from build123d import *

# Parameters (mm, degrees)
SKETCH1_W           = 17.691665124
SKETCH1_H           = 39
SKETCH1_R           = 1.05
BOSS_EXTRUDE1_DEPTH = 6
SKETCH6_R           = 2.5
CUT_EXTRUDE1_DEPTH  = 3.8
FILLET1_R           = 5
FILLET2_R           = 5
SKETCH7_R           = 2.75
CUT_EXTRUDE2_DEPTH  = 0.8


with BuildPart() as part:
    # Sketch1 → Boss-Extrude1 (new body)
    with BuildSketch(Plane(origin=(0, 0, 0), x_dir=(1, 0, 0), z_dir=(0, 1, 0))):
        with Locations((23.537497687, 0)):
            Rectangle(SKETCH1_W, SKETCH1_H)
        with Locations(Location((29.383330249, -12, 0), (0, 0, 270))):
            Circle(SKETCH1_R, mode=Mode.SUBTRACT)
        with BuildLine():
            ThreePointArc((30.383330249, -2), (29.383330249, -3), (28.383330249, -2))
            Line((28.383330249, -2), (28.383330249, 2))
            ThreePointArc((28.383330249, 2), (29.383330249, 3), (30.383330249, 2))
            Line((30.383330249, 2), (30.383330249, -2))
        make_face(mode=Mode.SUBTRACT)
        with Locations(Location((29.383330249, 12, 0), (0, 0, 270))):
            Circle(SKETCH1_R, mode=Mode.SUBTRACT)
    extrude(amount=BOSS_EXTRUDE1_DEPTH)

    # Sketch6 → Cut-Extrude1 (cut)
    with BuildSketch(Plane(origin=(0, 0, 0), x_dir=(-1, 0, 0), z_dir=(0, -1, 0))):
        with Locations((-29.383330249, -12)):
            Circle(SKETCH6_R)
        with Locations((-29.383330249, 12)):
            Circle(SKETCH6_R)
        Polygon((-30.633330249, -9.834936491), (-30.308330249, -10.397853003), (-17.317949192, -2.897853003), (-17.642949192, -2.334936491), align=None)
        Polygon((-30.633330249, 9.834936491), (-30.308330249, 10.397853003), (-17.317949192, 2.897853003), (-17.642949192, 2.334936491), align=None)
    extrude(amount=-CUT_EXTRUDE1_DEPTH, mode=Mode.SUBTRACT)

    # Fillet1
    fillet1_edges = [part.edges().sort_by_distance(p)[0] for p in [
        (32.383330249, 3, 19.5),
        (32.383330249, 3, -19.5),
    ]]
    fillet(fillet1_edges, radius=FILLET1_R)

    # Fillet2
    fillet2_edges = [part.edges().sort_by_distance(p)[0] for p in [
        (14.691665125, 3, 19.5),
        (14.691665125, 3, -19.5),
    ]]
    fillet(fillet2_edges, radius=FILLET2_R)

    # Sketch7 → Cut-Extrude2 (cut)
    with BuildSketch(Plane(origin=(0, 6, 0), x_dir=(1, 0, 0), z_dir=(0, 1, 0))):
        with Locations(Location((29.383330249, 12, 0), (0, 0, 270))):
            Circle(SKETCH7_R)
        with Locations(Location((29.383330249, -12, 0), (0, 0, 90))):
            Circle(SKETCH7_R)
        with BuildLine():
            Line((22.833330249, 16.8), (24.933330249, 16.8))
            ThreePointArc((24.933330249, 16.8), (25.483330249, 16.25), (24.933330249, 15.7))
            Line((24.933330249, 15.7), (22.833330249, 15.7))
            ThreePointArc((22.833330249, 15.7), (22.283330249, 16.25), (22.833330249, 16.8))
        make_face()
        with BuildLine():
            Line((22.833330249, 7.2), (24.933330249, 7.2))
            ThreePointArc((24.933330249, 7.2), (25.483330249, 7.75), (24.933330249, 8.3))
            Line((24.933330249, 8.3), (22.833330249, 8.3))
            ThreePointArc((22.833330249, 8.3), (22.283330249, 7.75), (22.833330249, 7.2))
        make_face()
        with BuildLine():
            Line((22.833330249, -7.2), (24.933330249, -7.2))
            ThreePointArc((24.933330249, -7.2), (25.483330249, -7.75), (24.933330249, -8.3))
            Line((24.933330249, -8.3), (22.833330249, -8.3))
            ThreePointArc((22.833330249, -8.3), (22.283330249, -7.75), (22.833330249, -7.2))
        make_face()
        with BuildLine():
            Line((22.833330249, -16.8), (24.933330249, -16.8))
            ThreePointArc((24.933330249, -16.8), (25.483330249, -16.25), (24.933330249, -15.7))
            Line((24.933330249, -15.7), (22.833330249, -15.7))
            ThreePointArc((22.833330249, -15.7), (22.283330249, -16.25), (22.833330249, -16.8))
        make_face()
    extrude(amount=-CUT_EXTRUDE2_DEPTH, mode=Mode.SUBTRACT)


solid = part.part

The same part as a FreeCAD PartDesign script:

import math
import FreeCAD as App
import Part
import Sketcher
from FreeCAD import Vector
Q = App.Units.Quantity


def edges_at(feature, points):
    """Names of the edges that pass closest to the given points."""
    edges = feature.Shape.Edges
    near = lambda p: min(range(len(edges)), key=lambda i: edges[i].distToShape(Part.Vertex(*p))[0])
    return sorted({f"Edge{near(p) + 1}" for p in points})


def add_polygon(sketch, points):
    """Adds a closed chain of lines whose ends are joined by coincident constraints."""
    first, n = sketch.GeometryCount, len(points)
    for a, b in zip(points, points[1:] + points[:1]):
        sketch.addGeometry(Part.LineSegment(App.Vector(*a, 0), App.Vector(*b, 0)), False)
    for i in range(n):
        sketch.addConstraint(Sketcher.Constraint("Coincident", first + i, 2, first + (i + 1) % n, 1))

doc = App.newDocument("Part")
body = doc.addObject("PartDesign::Body", "Body")

# Sketch on XZ plane
sketch1 = body.newObject("Sketcher::SketchObject", "Sketch")
sketch1.AttachmentSupport = (doc.getObject("XZ_Plane"), [""])
sketch1.MapMode = "FlatFace"
add_polygon(sketch1, [(14.7, -19.5), (14.7, 19.5), (32.4, 19.5), (32.4, -19.5)])  # lines 0-3
sketch1.addGeometry(Part.Circle(Vector(29.4, 12, 0), Vector(0, 0, 1), 1.1), False)  # 4
sketch1.addGeometry(Part.LineSegment(Vector(30.4, -2, 0), Vector(30.4, 2, 0)), False)  # 5
sketch1.addGeometry(Part.ArcOfCircle(Part.Circle(Vector(29.4, 2, 0), Vector(0, 0, 1), 1), math.radians(0), math.radians(180)), False)  # 6
sketch1.addGeometry(Part.LineSegment(Vector(28.4, 2, 0), Vector(28.4, -2, 0)), False)  # 7
sketch1.addGeometry(Part.ArcOfCircle(Part.Circle(Vector(29.4, -2, 0), Vector(0, 0, 1), 1), math.radians(180), math.radians(360)), False)  # 8
sketch1.addGeometry(Part.Circle(Vector(29.4, -12, 0), Vector(0, 0, 1), 1.1), False)  # 9
sketch1.addConstraint([
    Sketcher.Constraint("Tangent", 5, 2, 6, 1),
    Sketcher.Constraint("Tangent", 6, 2, 7, 1),
    Sketcher.Constraint("Tangent", 7, 2, 8, 1),
    Sketcher.Constraint("Tangent", 8, 2, 5, 1),
    Sketcher.Constraint("Vertical", 0),
    Sketcher.Constraint("Horizontal", 1),
    Sketcher.Constraint("Vertical", 2),
    Sketcher.Constraint("Horizontal", 3),
    Sketcher.Constraint("Vertical", 5),
    Sketcher.Constraint("Vertical", 7),
    Sketcher.Constraint("Equal", 4, 9),
    Sketcher.Constraint("Symmetric", 4, 3, 9, 3, -1),
    Sketcher.Constraint("Vertical", 4, 3, 6, 3),
    Sketcher.Constraint("Radius", 6, Q("1 mm")),
    Sketcher.Constraint("Diameter", 4, Q("2.1 mm")),
    Sketcher.Constraint("DistanceY", 0, 1, 0, 2, Q("39 mm")),
    Sketcher.Constraint("DistanceY", 5, 1, 5, 2, Q("4 mm")),
    Sketcher.Constraint("DistanceY", -1, 1, 4, 3, Q("12 mm")),
    Sketcher.Constraint("DistanceY", -1, 1, 6, 3, Q("2 mm")),
    Sketcher.Constraint("DistanceX", 4, 3, 1, 2, Q("3 mm")),
    Sketcher.Constraint("DistanceY", -1, 1, 0, 2, Q("19.5 mm")),
    Sketcher.Constraint("DistanceX", 1, 1, 1, 2, Q("17.691665 mm")),
    Sketcher.Constraint("DistanceX", -1, 1, 4, 3, Q("29.38333 mm")),
])
pad1 = body.newObject("PartDesign::Pad", "Pad")
pad1.Profile = sketch1
pad1.Length = 6
pad1.Reversed = True

# Sketch on XZ plane
sketch2 = body.newObject("Sketcher::SketchObject", "Sketch001")
sketch2.AttachmentSupport = (doc.getObject("XZ_Plane"), [""])
sketch2.MapMode = "FlatFace"
sketch2.addGeometry([
    Part.LineSegment(Vector(28.9, 9.6, 0), Vector(17.3, 2.9, 0)),  # 0
    Part.LineSegment(Vector(17.3, 2.9, 0), Vector(17.6, 2.3, 0)),  # 1
    Part.LineSegment(Vector(17.6, 2.3, 0), Vector(30.6, 9.8, 0)),  # 2
    Part.ArcOfCircle(Part.Circle(Vector(29.4, 12, 0), Vector(0, 0, 1), 2.5), math.radians(-60), math.radians(258)),  # 3
    Part.ArcOfCircle(Part.Circle(Vector(29.4, -12, 0), Vector(0, 0, 1), 2.5), math.radians(102), math.radians(420)),  # 4
    Part.LineSegment(Vector(30.6, -9.8, 0), Vector(17.6, -2.3, 0)),  # 5
    Part.LineSegment(Vector(17.6, -2.3, 0), Vector(17.3, -2.9, 0)),  # 6
    Part.LineSegment(Vector(17.3, -2.9, 0), Vector(28.9, -9.6, 0)),  # 7
], False)
sketch2.addConstraint([
    Sketcher.Constraint("Coincident", 0, 2, 1, 1),
    Sketcher.Constraint("Coincident", 1, 2, 2, 1),
    Sketcher.Constraint("Tangent", 2, 2, 3, 1),
    Sketcher.Constraint("Coincident", 3, 2, 0, 1),
    Sketcher.Constraint("Tangent", 4, 2, 5, 1),
    Sketcher.Constraint("Coincident", 5, 2, 6, 1),
    Sketcher.Constraint("Coincident", 6, 2, 7, 1),
    Sketcher.Constraint("Coincident", 7, 2, 4, 1),
    Sketcher.Constraint("Equal", 3, 4),
    Sketcher.Constraint("Symmetric", 3, 3, 4, 3, -1),
    Sketcher.Constraint("Symmetric", 1, 2, 5, 2, -1),
    Sketcher.Constraint("Symmetric", 0, 2, 6, 2, -1),
    Sketcher.Constraint("Perpendicular", 0, 1),
    Sketcher.Constraint("Perpendicular", 1, 2),
    Sketcher.Constraint("Perpendicular", 6, 7),
    Sketcher.Constraint("Radius", 3, Q("2.5 mm")),
    Sketcher.Constraint("Angle", 0, Q("-150 deg")),
    Sketcher.Constraint("Distance", 2, Q("15 mm")),
    Sketcher.Constraint("DistanceY", -1, 1, 3, 3, Q("12 mm")),
    Sketcher.Constraint("Distance", 1, Q("0.65 mm")),
    Sketcher.Constraint("DistanceX", -1, 1, 3, 3, Q("29.38333 mm")),
])
pocket1 = body.newObject("PartDesign::Pocket", "Pocket")
pocket1.Profile = sketch2
pocket1.Length = 3.8
doc.recompute()

fillet = body.newObject("PartDesign::Fillet", "Fillet")
fillet.Base = (pocket1, edges_at(pocket1, [(32.383, 3, 19.5), (32.383, 3, -19.5)]))
fillet.Radius = 5
doc.recompute()

fillet2 = body.newObject("PartDesign::Fillet", "Fillet001")
fillet2.Base = (fillet, edges_at(fillet, [(14.692, 3, 19.5), (14.692, 3, -19.5)]))
fillet2.Radius = 5

# Sketch on XZ plane
sketch3 = body.newObject("Sketcher::SketchObject", "Sketch002")
sketch3.AttachmentSupport = (doc.getObject("XZ_Plane"), [""])
sketch3.MapMode = "FlatFace"
sketch3.AttachmentOffset = App.Placement(Vector(0, 0, -6), App.Rotation())
sketch3.addGeometry([
    Part.Circle(Vector(29.4, -12, 0), Vector(0, 0, 1), 2.8),  # 0
    Part.Circle(Vector(29.4, 12, 0), Vector(0, 0, 1), 2.8),  # 1
    Part.LineSegment(Vector(24.9, -16.8, 0), Vector(22.8, -16.8, 0)),  # 2
    Part.ArcOfCircle(Part.Circle(Vector(22.8, -16.2, 0), Vector(0, 0, 1), 0.6), math.radians(90), math.radians(270)),  # 3
    Part.LineSegment(Vector(22.8, -15.7, 0), Vector(24.9, -15.7, 0)),  # 4
    Part.ArcOfCircle(Part.Circle(Vector(24.9, -16.2, 0), Vector(0, 0, 1), 0.6), math.radians(-90), math.radians(90)),  # 5
    Part.LineSegment(Vector(22.8, -7.2, 0), Vector(24.9, -7.2, 0)),  # 6
    Part.ArcOfCircle(Part.Circle(Vector(24.9, -7.8, 0), Vector(0, 0, 1), 0.6), math.radians(-90), math.radians(90)),  # 7
    Part.LineSegment(Vector(24.9, -8.3, 0), Vector(22.8, -8.3, 0)),  # 8
    Part.ArcOfCircle(Part.Circle(Vector(22.8, -7.8, 0), Vector(0, 0, 1), 0.6), math.radians(90), math.radians(270)),  # 9
    Part.LineSegment(Vector(24.9, 7.2, 0), Vector(22.8, 7.2, 0)),  # 10
    Part.ArcOfCircle(Part.Circle(Vector(22.8, 7.8, 0), Vector(0, 0, 1), 0.6), math.radians(90), math.radians(270)),  # 11
    Part.LineSegment(Vector(22.8, 8.3, 0), Vector(24.9, 8.3, 0)),  # 12
    Part.ArcOfCircle(Part.Circle(Vector(24.9, 7.8, 0), Vector(0, 0, 1), 0.6), math.radians(-90), math.radians(90)),  # 13
    Part.LineSegment(Vector(22.8, 16.8, 0), Vector(24.9, 16.8, 0)),  # 14
    Part.ArcOfCircle(Part.Circle(Vector(24.9, 16.2, 0), Vector(0, 0, 1), 0.6), math.radians(-90), math.radians(90)),  # 15
    Part.LineSegment(Vector(24.9, 15.7, 0), Vector(22.8, 15.7, 0)),  # 16
    Part.ArcOfCircle(Part.Circle(Vector(22.8, 16.2, 0), Vector(0, 0, 1), 0.6), math.radians(90), math.radians(270)),  # 17
], False)
sketch3.addConstraint([
    Sketcher.Constraint("Tangent", 2, 2, 3, 2),
    Sketcher.Constraint("Tangent", 3, 1, 4, 1),
    Sketcher.Constraint("Tangent", 4, 2, 5, 2),
    Sketcher.Constraint("Tangent", 5, 1, 2, 1),
    Sketcher.Constraint("Tangent", 6, 2, 7, 2),
    Sketcher.Constraint("Tangent", 7, 1, 8, 1),
    Sketcher.Constraint("Tangent", 8, 2, 9, 2),
    Sketcher.Constraint("Tangent", 9, 1, 6, 1),
    Sketcher.Constraint("Tangent", 10, 2, 11, 2),
    Sketcher.Constraint("Tangent", 11, 1, 12, 1),
    Sketcher.Constraint("Tangent", 12, 2, 13, 2),
    Sketcher.Constraint("Tangent", 13, 1, 10, 1),
    Sketcher.Constraint("Tangent", 14, 2, 15, 2),
    Sketcher.Constraint("Tangent", 15, 1, 16, 1),
    Sketcher.Constraint("Tangent", 16, 2, 17, 2),
    Sketcher.Constraint("Tangent", 17, 1, 14, 1),
    Sketcher.Constraint("Horizontal", 2),
    Sketcher.Constraint("Horizontal", 4),
    Sketcher.Constraint("Horizontal", 6),
    Sketcher.Constraint("Horizontal", 8),
    Sketcher.Constraint("Horizontal", 10),
    Sketcher.Constraint("Horizontal", 12),
    Sketcher.Constraint("Horizontal", 14),
    Sketcher.Constraint("Horizontal", 16),
    Sketcher.Constraint("Equal", 0, 1),
    Sketcher.Constraint("Equal", 5, 7),
    Sketcher.Constraint("Equal", 9, 11),
    Sketcher.Constraint("Equal", 13, 15),
    Sketcher.Constraint("Symmetric", 0, 3, 1, 3, -1),
    Sketcher.Constraint("Symmetric", 9, 3, 11, 3, -1),
    Sketcher.Constraint("Symmetric", 5, 3, 15, 3, -1),
    Sketcher.Constraint("Vertical", 5, 3, 7, 3),
    Sketcher.Constraint("Vertical", 3, 3, 9, 3),
    Sketcher.Constraint("Vertical", 7, 3, 13, 3),
    Sketcher.Constraint("Vertical", 11, 3, 17, 3),
    Sketcher.Constraint("Diameter", 0, Q("5.5 mm")),
    Sketcher.Constraint("Radius", 3, Q("0.55 mm")),
    Sketcher.Constraint("DistanceX", 2, 2, 2, 1, Q("2.1 mm")),
    Sketcher.Constraint("DistanceY", 0, 3, -1, 1, Q("12 mm")),
    Sketcher.Constraint("DistanceY", 3, 3, 11, 3, Q("24 mm")),
    Sketcher.Constraint("DistanceY", 2, 2, -1, 1, Q("16.8 mm")),
    Sketcher.Constraint("DistanceX", 3, 3, 0, 3, Q("6.55 mm")),
    Sketcher.Constraint("DistanceX", -1, 1, 0, 3, Q("29.38333 mm")),
])
pocket2 = body.newObject("PartDesign::Pocket", "Pocket001")
pocket2.Profile = sketch3
pocket2.Length = 0.8
pocket2.Reversed = True

doc.recompute()
